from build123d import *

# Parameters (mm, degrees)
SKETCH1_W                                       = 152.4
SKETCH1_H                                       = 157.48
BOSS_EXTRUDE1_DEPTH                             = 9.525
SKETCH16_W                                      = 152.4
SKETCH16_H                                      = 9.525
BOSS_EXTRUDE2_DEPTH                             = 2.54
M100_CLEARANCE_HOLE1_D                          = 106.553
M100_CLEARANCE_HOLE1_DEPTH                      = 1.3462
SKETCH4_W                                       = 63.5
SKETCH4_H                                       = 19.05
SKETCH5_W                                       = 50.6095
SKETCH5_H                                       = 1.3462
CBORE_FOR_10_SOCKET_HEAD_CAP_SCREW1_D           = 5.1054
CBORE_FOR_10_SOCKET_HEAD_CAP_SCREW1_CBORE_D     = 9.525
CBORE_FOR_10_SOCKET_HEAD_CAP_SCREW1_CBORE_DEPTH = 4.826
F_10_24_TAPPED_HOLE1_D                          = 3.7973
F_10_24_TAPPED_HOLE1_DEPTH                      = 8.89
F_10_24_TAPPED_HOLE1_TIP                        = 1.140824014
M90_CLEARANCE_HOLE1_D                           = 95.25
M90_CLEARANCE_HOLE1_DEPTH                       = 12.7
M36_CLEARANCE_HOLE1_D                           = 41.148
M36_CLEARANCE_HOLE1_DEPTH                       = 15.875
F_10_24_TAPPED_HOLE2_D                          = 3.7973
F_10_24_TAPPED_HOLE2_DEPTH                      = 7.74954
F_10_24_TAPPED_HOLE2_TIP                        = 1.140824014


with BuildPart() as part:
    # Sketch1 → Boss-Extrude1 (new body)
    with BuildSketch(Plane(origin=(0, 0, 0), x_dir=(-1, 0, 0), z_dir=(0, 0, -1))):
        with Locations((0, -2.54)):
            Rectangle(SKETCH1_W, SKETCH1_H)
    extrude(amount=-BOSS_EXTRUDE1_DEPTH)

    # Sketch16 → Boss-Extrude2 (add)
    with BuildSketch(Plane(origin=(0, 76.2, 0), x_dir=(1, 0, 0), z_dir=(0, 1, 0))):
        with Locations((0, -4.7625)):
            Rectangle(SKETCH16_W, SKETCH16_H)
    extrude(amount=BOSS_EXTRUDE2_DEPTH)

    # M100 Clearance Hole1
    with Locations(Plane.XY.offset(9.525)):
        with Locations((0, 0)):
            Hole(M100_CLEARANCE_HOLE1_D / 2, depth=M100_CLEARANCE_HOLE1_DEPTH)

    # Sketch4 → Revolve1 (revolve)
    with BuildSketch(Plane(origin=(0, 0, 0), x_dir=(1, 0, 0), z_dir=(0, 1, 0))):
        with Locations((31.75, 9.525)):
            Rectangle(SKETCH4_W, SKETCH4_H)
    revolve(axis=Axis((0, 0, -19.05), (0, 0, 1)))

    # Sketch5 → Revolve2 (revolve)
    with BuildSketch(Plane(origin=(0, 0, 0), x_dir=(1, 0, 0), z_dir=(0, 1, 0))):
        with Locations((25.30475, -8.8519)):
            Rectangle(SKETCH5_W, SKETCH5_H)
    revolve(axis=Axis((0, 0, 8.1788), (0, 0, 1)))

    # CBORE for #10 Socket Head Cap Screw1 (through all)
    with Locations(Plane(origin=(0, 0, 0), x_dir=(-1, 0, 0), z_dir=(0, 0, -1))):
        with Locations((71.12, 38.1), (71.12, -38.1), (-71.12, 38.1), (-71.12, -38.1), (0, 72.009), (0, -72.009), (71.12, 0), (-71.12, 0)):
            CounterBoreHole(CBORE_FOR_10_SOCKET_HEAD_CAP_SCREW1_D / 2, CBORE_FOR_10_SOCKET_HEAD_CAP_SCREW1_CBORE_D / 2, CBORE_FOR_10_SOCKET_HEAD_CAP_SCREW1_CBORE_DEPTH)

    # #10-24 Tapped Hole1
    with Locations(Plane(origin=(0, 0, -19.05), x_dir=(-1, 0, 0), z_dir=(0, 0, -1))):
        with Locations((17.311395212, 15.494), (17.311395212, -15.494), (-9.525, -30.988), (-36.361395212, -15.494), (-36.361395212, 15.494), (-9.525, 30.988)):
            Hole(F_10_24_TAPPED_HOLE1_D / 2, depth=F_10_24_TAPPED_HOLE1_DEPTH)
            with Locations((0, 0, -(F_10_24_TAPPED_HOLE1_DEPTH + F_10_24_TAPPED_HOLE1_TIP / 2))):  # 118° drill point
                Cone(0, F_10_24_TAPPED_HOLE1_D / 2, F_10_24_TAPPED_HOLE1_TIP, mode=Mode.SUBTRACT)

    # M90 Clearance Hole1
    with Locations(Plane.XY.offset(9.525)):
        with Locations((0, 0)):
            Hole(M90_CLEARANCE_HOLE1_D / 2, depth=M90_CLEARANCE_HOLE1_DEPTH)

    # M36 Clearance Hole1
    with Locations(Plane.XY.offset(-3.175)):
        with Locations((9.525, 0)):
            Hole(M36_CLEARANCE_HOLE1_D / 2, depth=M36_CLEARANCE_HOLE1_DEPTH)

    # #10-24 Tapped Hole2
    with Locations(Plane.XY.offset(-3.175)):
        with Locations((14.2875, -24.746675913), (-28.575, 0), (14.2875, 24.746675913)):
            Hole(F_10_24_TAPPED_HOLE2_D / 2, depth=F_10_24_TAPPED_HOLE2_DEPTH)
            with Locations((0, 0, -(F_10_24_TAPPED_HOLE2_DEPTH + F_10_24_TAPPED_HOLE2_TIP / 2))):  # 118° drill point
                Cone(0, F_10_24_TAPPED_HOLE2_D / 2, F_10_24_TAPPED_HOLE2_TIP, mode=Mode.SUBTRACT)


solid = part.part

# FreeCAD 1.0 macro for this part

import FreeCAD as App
import Part
import Sketcher

V = App.Vector
Q = App.Units.Quantity

doc = App.newDocument("Part")
body = doc.addObject("PartDesign::Body", "Body")

# Sketch on XY plane
sketch1 = body.newObject("Sketcher::SketchObject", "Sketch")
sketch1.AttachmentSupport = (doc.getObject("XY_Plane"), [""])
sketch1.MapMode = "FlatFace"
sketch1.addGeometry([
    Part.LineSegment(V(76, 76, 0), V(76, -81, 0)),
    Part.LineSegment(V(76, -81, 0), V(-76, -81, 0)),
    Part.LineSegment(V(-76, -81, 0), V(-76, 76, 0)),
    Part.LineSegment(V(-76, 76, 0), V(76, 76, 0)),
], False)
sketch1.addConstraint([
    Sketcher.Constraint("Coincident", 0, 2, 1, 1),
    Sketcher.Constraint("Coincident", 1, 2, 2, 1),
    Sketcher.Constraint("Coincident", 2, 2, 3, 1),
    Sketcher.Constraint("Coincident", 3, 2, 0, 1),
    Sketcher.Constraint("Vertical", 0),
    Sketcher.Constraint("Horizontal", 1),
    Sketcher.Constraint("Vertical", 2),
    Sketcher.Constraint("Horizontal", 3),
    Sketcher.Constraint("DistanceX", 1, 2, 1, 1, Q("6 in")),
    Sketcher.Constraint("DistanceY", 0, 2, 0, 1, Q("6.2 in")),
    Sketcher.Constraint("DistanceX", -1, 1, 0, 2, Q("3 in")),
    Sketcher.Constraint("DistanceY", -1, 1, 2, 2, Q("3 in")),
])
pad1 = body.newObject("PartDesign::Pad", "Pad")
pad1.Profile = sketch1
pad1.Length = Q("0.375 in")

# Sketch on XZ plane
sketch2 = body.newObject("Sketcher::SketchObject", "Sketch001")
sketch2.AttachmentSupport = (doc.getObject("XZ_Plane"), [""])
sketch2.MapMode = "FlatFace"
sketch2.AttachmentOffset = App.Placement(V(0, 0, -3 * 25.4), App.Rotation())
sketch2.addGeometry([
    Part.LineSegment(V(-76, 0, 0), V(-76, 10, 0)),
    Part.LineSegment(V(-76, 10, 0), V(76, 10, 0)),
    Part.LineSegment(V(76, 10, 0), V(76, 0, 0)),
    Part.LineSegment(V(76, 0, 0), V(-76, 0, 0)),
], False)
sketch2.addConstraint([
    Sketcher.Constraint("Coincident", 0, 2, 1, 1),
    Sketcher.Constraint("Coincident", 1, 2, 2, 1),
    Sketcher.Constraint("Coincident", 2, 2, 3, 1),
    Sketcher.Constraint("Coincident", 3, 2, 0, 1),
    Sketcher.Constraint("Vertical", 0),
    Sketcher.Constraint("Horizontal", 1),
    Sketcher.Constraint("Vertical", 2),
    Sketcher.Constraint("Horizontal", 3),
    Sketcher.Constraint("Symmetric", 2, 2, 3, 2, -1, 1),
    Sketcher.Constraint("DistanceX", 1, 1, 1, 2, Q("6 in")),
    Sketcher.Constraint("DistanceY", 0, 1, 0, 2, Q("0.375 in")),
])
pad2 = body.newObject("PartDesign::Pad", "Pad001")
pad2.Profile = sketch2
pad2.Length = Q("0.1 in")
pad2.Reversed = True

# Sketch on XY plane
sketch3 = body.newObject("Sketcher::SketchObject", "Sketch002")
sketch3.AttachmentSupport = (doc.getObject("XY_Plane"), [""])
sketch3.MapMode = "FlatFace"
sketch3.AttachmentOffset = App.Placement(V(0, 0, 0.375 * 25.4), App.Rotation())
sketch3.addGeometry(Part.Circle(V(0, 0, 0), V(0, 0, 1), 53), False)
sketch3.addConstraint([
    Sketcher.Constraint("Coincident", 0, 3, -1, 1),
    Sketcher.Constraint("Diameter", 0, Q("4.195 in")),
])
doc.recompute()
hole = body.newObject("PartDesign::Hole", "Hole")
hole.Profile = sketch3
hole.ThreadType = "None"
hole.Diameter = Q("4.195 in")
hole.DepthType = "Dimension"
hole.Depth = Q("0.053 in")
hole.DrillPoint = "Flat"

# Sketch on XZ plane
sketch4 = body.newObject("Sketcher::SketchObject", "Sketch003")
sketch4.AttachmentSupport = (doc.getObject("XZ_Plane"), [""])
sketch4.MapMode = "FlatFace"
sketch4.addGeometry([
    Part.LineSegment(V(0, -19, 0), V(0, 0, 0)),
    Part.LineSegment(V(0, 0, 0), V(64, 0, 0)),
    Part.LineSegment(V(64, 0, 0), V(64, -19, 0)),
    Part.LineSegment(V(64, -19, 0), V(0, -19, 0)),
], False)
sketch4.addConstraint([
    Sketcher.Constraint("Coincident", 0, 2, 1, 1),
    Sketcher.Constraint("Coincident", 1, 2, 2, 1),
    Sketcher.Constraint("Coincident", 2, 2, 3, 1),
    Sketcher.Constraint("Coincident", 3, 2, 0, 1),
    Sketcher.Constraint("Vertical", 0),
    Sketcher.Constraint("Horizontal", 1),
    Sketcher.Constraint("Vertical", 2),
    Sketcher.Constraint("Horizontal", 3),
    Sketcher.Constraint("Coincident", 0, 2, -1, 1),
    Sketcher.Constraint("DistanceX", 1, 1, 1, 2, Q("2.5 in")),
    Sketcher.Constraint("DistanceY", 0, 1, 0, 2, Q("0.75 in")),
])
revolution = body.newObject("PartDesign::Revolution", "Revolution")
revolution.Profile = sketch4
revolution.ReferenceAxis = (sketch4, ["V_Axis"])
revolution.Angle = 360

# Sketch on XZ plane
sketch5 = body.newObject("Sketcher::SketchObject", "Sketch004")
sketch5.AttachmentSupport = (doc.getObject("XZ_Plane"), [""])
sketch5.MapMode = "FlatFace"
sketch5.addGeometry([
    Part.LineSegment(V(0, 8.2, 0), V(0, 9.5, 0)),
    Part.LineSegment(V(0, 9.5, 0), V(50.6, 9.5, 0)),
    Part.LineSegment(V(50.6, 9.5, 0), V(50.6, 8.2, 0)),
    Part.LineSegment(V(50.6, 8.2, 0), V(0, 8.2, 0)),
], False)
sketch5.addConstraint([
    Sketcher.Constraint("Coincident", 0, 2, 1, 1),
    Sketcher.Constraint("Coincident", 1, 2, 2, 1),
    Sketcher.Constraint("Coincident", 2, 2, 3, 1),
    Sketcher.Constraint("Coincident", 3, 2, 0, 1),
    Sketcher.Constraint("Vertical", 0),
    Sketcher.Constraint("Horizontal", 1),
    Sketcher.Constraint("Vertical", 2),
    Sketcher.Constraint("Horizontal", 3),
    Sketcher.Constraint("PointOnObject", 0, 2, -2),
    Sketcher.Constraint("DistanceY", 0, 1, 0, 2, Q("0.053 in")),
    Sketcher.Constraint("DistanceX", 1, 1, 1, 2, Q("1.9925 in")),
    Sketcher.Constraint("DistanceY", -1, 1, 0, 2, Q("0.375 in")),
])
revolution2 = body.newObject("PartDesign::Revolution", "Revolution001")
revolution2.Profile = sketch5
revolution2.ReferenceAxis = (sketch5, ["V_Axis"])
revolution2.Angle = 360

# Sketch on XY plane
sketch6 = body.newObject("Sketcher::SketchObject", "Sketch005")
sketch6.AttachmentSupport = (doc.getObject("XY_Plane"), [""])
sketch6.MapMode = "FlatFace"
sketch6.addGeometry([
    Part.Circle(V(-71.1, 38.1, 0), V(0, 0, 1), 2.6),  # 0
    Part.Circle(V(-71.1, -38.1, 0), V(0, 0, 1), 2.6),  # 1
    Part.Circle(V(71.1, 38.1, 0), V(0, 0, 1), 2.6),  # 2
    Part.Circle(V(71.1, -38.1, 0), V(0, 0, 1), 2.6),  # 3
    Part.Circle(V(0, 72, 0), V(0, 0, 1), 2.6),  # 4
    Part.Circle(V(0, -72, 0), V(0, 0, 1), 2.6),  # 5
    Part.Circle(V(-71.1, 0, 0), V(0, 0, 1), 2.6),  # 6
    Part.Circle(V(71.1, 0, 0), V(0, 0, 1), 2.6),  # 7
], False)
sketch6.addConstraint([
    Sketcher.Constraint("Equal", 0, 1),
    Sketcher.Constraint("Equal", 1, 2),
    Sketcher.Constraint("Equal", 2, 3),
    Sketcher.Constraint("Equal", 3, 4),
    Sketcher.Constraint("Equal", 4, 5),
    Sketcher.Constraint("Equal", 5, 6),
    Sketcher.Constraint("Equal", 6, 7),
    Sketcher.Constraint("Symmetric", 1, 3, 2, 3, -1, 1),
    Sketcher.Constraint("Symmetric", 0, 3, 3, 3, -1, 1),
    Sketcher.Constraint("Symmetric", 4, 3, 5, 3, -1, 1),
    Sketcher.Constraint("Symmetric", 6, 3, 7, 3, -1, 1),
    Sketcher.Constraint("Symmetric", 0, 3, 2, 3, -2),
    Sketcher.Constraint("PointOnObject", 4, 3, -2),
    Sketcher.Constraint("PointOnObject", 6, 3, -1),
    Sketcher.Constraint("Vertical", 1, 3, 6, 3),
    Sketcher.Constraint("Diameter", 0, Q("0.201 in")),
    Sketcher.Constraint("DistanceY", 1, 3, 0, 3, Q("3 in")),
    Sketcher.Constraint("DistanceX", 0, 3, -1, 1, Q("2.8 in")),
    Sketcher.Constraint("DistanceY", 5, 3, 4, 3, Q("5.67 in")),
])
doc.recompute()
hole2 = body.newObject("PartDesign::Hole", "Hole001")
hole2.Profile = sketch6
hole2.ThreadType = "None"
hole2.Diameter = Q("0.201 in")
hole2.DepthType = "ThroughAll"
hole2.HoleCutType = "Counterbore"
hole2.HoleCutDiameter = Q("0.375 in")
hole2.HoleCutDepth = Q("0.19 in")
hole2.Reversed = True

# Sketch on XY plane
sketch7 = body.newObject("Sketcher::SketchObject", "Sketch006")
sketch7.AttachmentSupport = (doc.getObject("XY_Plane"), [""])
sketch7.MapMode = "FlatFace"
sketch7.AttachmentOffset = App.Placement(V(0, 0, -0.75 * 25.4), App.Rotation())
sketch7.addGeometry([
    Part.Circle(V(-17.3, 15.5, 0), V(0, 0, 1), 1.9),  # 0
    Part.Circle(V(-17.3, -15.5, 0), V(0, 0, 1), 1.9),  # 1
    Part.Circle(V(9.5, -31, 0), V(0, 0, 1), 1.9),  # 2
    Part.Circle(V(36.4, -15.5, 0), V(0, 0, 1), 1.9),  # 3
    Part.Circle(V(36.4, 15.5, 0), V(0, 0, 1), 1.9),  # 4
    Part.Circle(V(9.5, 31, 0), V(0, 0, 1), 1.9),  # 5
], False)
sketch7.addConstraint([
    Sketcher.Constraint("Equal", 0, 1),
    Sketcher.Constraint("Equal", 1, 2),
    Sketcher.Constraint("Equal", 2, 3),
    Sketcher.Constraint("Equal", 3, 4),
    Sketcher.Constraint("Equal", 4, 5),
    Sketcher.Constraint("Symmetric", 0, 3, 1, 3, -1),
    Sketcher.Constraint("Symmetric", 3, 3, 4, 3, -1),
    Sketcher.Constraint("Symmetric", 2, 3, 5, 3, -1),
    Sketcher.Constraint("Horizontal", 1, 3, 3, 3),
    Sketcher.Constraint("Diameter", 0, Q("0.1495 in")),
    Sketcher.Constraint("DistanceY", -1, 1, 0, 3, Q("0.61 in")),
    Sketcher.Constraint("DistanceY", 2, 3, -1, 1, Q("1.22 in")),
    Sketcher.Constraint("DistanceX", -1, 1, 2, 3, Q("0.375 in")),
    Sketcher.Constraint("DistanceX", 1, 3, 3, 3, Q("53.67279 mm")),
    Sketcher.Constraint("DistanceX", 0, 3, -1, 1, Q("17.311395 mm")),
])
doc.recompute()
hole3 = body.newObject("PartDesign::Hole", "Hole002")
hole3.Profile = sketch7
hole3.ThreadType = "None"
hole3.Diameter = Q("0.1495 in")
hole3.DepthType = "Dimension"
hole3.Depth = Q("0.35 in")
hole3.DrillPoint = "Angled"
hole3.DrillPointAngle = 118
hole3.Reversed = True

# Sketch on XY plane
sketch8 = body.newObject("Sketcher::SketchObject", "Sketch007")
sketch8.AttachmentSupport = (doc.getObject("XY_Plane"), [""])
sketch8.MapMode = "FlatFace"
sketch8.AttachmentOffset = App.Placement(V(0, 0, 0.375 * 25.4), App.Rotation())
sketch8.addGeometry(Part.Circle(V(0, 0, 0), V(0, 0, 1), 48), False)
sketch8.addConstraint([
    Sketcher.Constraint("Coincident", 0, 3, -1, 1),
    Sketcher.Constraint("Diameter", 0, Q("3.75 in")),
])
doc.recompute()
hole4 = body.newObject("PartDesign::Hole", "Hole003")
hole4.Profile = sketch8
hole4.ThreadType = "None"
hole4.Diameter = Q("3.75 in")
hole4.DepthType = "Dimension"
hole4.Depth = Q("0.5 in")
hole4.DrillPoint = "Flat"

# Sketch on XY plane
sketch9 = body.newObject("Sketcher::SketchObject", "Sketch008")
sketch9.AttachmentSupport = (doc.getObject("XY_Plane"), [""])
sketch9.MapMode = "FlatFace"
sketch9.AttachmentOffset = App.Placement(V(0, 0, -0.125 * 25.4), App.Rotation())
sketch9.addGeometry(Part.Circle(V(10, 0, 0), V(0, 0, 1), 21), False)
sketch9.addConstraint([
    Sketcher.Constraint("PointOnObject", 0, 3, -1),
    Sketcher.Constraint("Diameter", 0, Q("1.62 in")),
    Sketcher.Constraint("DistanceX", -1, 1, 0, 3, Q("0.375 in")),
])
doc.recompute()
hole5 = body.newObject("PartDesign::Hole", "Hole004")
hole5.Profile = sketch9
hole5.ThreadType = "None"
hole5.Diameter = Q("1.62 in")
hole5.DepthType = "Dimension"
hole5.Depth = Q("0.625 in")
hole5.DrillPoint = "Flat"

# Sketch on XY plane
sketch10 = body.newObject("Sketcher::SketchObject", "Sketch009")
sketch10.AttachmentSupport = (doc.getObject("XY_Plane"), [""])
sketch10.MapMode = "FlatFace"
sketch10.AttachmentOffset = App.Placement(V(0, 0, -0.125 * 25.4), App.Rotation())
sketch10.addGeometry([
    Part.Circle(V(14.3, -24.7, 0), V(0, 0, 1), 1.9),
    Part.Circle(V(-28.6, 0, 0), V(0, 0, 1), 1.9),
    Part.Circle(V(14.3, 24.7, 0), V(0, 0, 1), 1.9),
], False)
sketch10.addConstraint([
    Sketcher.Constraint("Equal", 0, 1),
    Sketcher.Constraint("Equal", 1, 2),
    Sketcher.Constraint("Symmetric", 0, 3, 2, 3, -1),
    Sketcher.Constraint("PointOnObject", 1, 3, -1),
    Sketcher.Constraint("Diameter", 0, Q("0.1495 in")),
    Sketcher.Constraint("DistanceX", -1, 1, 0, 3, Q("0.5625 in")),
    Sketcher.Constraint("DistanceX", 1, 3, -1, 1, Q("1.125 in")),
    Sketcher.Constraint("DistanceY", 0, 3, 2, 3, Q("49.493352 mm")),
])
doc.recompute()
hole6 = body.newObject("PartDesign::Hole", "Hole005")
hole6.Profile = sketch10
hole6.ThreadType = "None"
hole6.Diameter = Q("0.1495 in")
hole6.DepthType = "Dimension"
hole6.Depth = Q("0.3051 in")
hole6.DrillPoint = "Angled"
hole6.DrillPointAngle = 118

doc.recompute()
